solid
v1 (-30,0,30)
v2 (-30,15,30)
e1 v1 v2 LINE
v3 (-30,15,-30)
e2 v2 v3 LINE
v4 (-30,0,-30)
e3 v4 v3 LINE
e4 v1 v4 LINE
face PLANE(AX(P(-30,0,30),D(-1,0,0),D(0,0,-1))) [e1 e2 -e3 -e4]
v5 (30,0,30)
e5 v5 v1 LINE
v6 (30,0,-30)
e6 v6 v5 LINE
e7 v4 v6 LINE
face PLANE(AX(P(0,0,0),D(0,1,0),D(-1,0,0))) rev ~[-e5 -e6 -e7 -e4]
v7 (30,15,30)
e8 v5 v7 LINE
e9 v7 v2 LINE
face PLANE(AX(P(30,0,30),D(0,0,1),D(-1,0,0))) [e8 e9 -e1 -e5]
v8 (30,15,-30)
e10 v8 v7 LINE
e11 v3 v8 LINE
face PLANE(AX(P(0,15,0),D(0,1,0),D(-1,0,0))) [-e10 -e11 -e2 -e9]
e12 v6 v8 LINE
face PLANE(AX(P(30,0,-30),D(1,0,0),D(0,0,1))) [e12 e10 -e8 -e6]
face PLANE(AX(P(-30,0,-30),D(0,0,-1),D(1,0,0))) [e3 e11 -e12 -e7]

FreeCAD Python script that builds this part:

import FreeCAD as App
import Part
import Sketcher
Q = App.Units.Quantity


def add_polygon(sketch, points):
    """Adds a closed chain of lines whose ends are joined by coincident constraints."""
    first, n = sketch.GeometryCount, len(points)
    for a, b in zip(points, points[1:] + points[:1]):
        sketch.addGeometry(Part.LineSegment(App.Vector(*a, 0), App.Vector(*b, 0)), False)
    for i in range(n):
        sketch.addConstraint(Sketcher.Constraint("Coincident", first + i, 2, first + (i + 1) % n, 1))

doc = App.newDocument("Part")
body = doc.addObject("PartDesign::Body", "Body")

sketch1 = body.newObject("Sketcher::SketchObject", "Sketch")
sketch1.AttachmentSupport = (doc.getObject("XZ_Plane"), [""])
sketch1.MapMode = "FlatFace"
add_polygon(sketch1, [(30, -30), (-30, -30), (-30, 30), (30, 30)])
sketch1.addConstraint([
    Sketcher.Constraint("Horizontal", 0),
    Sketcher.Constraint("Vertical", 1),
    Sketcher.Constraint("Horizontal", 2),
    Sketcher.Constraint("Vertical", 3),
    Sketcher.Constraint("Symmetric", 0, 2, 2, 2, -1, 1),
    Sketcher.Constraint("Equal", 2, 1),
    Sketcher.Constraint("DistanceX", 0, 2, 0, 1, Q("60 mm")),
])
pad1 = body.newObject("PartDesign::Pad", "Pad")
pad1.Profile = sketch1
pad1.Length = 15
pad1.Reversed = True

doc.recompute()
